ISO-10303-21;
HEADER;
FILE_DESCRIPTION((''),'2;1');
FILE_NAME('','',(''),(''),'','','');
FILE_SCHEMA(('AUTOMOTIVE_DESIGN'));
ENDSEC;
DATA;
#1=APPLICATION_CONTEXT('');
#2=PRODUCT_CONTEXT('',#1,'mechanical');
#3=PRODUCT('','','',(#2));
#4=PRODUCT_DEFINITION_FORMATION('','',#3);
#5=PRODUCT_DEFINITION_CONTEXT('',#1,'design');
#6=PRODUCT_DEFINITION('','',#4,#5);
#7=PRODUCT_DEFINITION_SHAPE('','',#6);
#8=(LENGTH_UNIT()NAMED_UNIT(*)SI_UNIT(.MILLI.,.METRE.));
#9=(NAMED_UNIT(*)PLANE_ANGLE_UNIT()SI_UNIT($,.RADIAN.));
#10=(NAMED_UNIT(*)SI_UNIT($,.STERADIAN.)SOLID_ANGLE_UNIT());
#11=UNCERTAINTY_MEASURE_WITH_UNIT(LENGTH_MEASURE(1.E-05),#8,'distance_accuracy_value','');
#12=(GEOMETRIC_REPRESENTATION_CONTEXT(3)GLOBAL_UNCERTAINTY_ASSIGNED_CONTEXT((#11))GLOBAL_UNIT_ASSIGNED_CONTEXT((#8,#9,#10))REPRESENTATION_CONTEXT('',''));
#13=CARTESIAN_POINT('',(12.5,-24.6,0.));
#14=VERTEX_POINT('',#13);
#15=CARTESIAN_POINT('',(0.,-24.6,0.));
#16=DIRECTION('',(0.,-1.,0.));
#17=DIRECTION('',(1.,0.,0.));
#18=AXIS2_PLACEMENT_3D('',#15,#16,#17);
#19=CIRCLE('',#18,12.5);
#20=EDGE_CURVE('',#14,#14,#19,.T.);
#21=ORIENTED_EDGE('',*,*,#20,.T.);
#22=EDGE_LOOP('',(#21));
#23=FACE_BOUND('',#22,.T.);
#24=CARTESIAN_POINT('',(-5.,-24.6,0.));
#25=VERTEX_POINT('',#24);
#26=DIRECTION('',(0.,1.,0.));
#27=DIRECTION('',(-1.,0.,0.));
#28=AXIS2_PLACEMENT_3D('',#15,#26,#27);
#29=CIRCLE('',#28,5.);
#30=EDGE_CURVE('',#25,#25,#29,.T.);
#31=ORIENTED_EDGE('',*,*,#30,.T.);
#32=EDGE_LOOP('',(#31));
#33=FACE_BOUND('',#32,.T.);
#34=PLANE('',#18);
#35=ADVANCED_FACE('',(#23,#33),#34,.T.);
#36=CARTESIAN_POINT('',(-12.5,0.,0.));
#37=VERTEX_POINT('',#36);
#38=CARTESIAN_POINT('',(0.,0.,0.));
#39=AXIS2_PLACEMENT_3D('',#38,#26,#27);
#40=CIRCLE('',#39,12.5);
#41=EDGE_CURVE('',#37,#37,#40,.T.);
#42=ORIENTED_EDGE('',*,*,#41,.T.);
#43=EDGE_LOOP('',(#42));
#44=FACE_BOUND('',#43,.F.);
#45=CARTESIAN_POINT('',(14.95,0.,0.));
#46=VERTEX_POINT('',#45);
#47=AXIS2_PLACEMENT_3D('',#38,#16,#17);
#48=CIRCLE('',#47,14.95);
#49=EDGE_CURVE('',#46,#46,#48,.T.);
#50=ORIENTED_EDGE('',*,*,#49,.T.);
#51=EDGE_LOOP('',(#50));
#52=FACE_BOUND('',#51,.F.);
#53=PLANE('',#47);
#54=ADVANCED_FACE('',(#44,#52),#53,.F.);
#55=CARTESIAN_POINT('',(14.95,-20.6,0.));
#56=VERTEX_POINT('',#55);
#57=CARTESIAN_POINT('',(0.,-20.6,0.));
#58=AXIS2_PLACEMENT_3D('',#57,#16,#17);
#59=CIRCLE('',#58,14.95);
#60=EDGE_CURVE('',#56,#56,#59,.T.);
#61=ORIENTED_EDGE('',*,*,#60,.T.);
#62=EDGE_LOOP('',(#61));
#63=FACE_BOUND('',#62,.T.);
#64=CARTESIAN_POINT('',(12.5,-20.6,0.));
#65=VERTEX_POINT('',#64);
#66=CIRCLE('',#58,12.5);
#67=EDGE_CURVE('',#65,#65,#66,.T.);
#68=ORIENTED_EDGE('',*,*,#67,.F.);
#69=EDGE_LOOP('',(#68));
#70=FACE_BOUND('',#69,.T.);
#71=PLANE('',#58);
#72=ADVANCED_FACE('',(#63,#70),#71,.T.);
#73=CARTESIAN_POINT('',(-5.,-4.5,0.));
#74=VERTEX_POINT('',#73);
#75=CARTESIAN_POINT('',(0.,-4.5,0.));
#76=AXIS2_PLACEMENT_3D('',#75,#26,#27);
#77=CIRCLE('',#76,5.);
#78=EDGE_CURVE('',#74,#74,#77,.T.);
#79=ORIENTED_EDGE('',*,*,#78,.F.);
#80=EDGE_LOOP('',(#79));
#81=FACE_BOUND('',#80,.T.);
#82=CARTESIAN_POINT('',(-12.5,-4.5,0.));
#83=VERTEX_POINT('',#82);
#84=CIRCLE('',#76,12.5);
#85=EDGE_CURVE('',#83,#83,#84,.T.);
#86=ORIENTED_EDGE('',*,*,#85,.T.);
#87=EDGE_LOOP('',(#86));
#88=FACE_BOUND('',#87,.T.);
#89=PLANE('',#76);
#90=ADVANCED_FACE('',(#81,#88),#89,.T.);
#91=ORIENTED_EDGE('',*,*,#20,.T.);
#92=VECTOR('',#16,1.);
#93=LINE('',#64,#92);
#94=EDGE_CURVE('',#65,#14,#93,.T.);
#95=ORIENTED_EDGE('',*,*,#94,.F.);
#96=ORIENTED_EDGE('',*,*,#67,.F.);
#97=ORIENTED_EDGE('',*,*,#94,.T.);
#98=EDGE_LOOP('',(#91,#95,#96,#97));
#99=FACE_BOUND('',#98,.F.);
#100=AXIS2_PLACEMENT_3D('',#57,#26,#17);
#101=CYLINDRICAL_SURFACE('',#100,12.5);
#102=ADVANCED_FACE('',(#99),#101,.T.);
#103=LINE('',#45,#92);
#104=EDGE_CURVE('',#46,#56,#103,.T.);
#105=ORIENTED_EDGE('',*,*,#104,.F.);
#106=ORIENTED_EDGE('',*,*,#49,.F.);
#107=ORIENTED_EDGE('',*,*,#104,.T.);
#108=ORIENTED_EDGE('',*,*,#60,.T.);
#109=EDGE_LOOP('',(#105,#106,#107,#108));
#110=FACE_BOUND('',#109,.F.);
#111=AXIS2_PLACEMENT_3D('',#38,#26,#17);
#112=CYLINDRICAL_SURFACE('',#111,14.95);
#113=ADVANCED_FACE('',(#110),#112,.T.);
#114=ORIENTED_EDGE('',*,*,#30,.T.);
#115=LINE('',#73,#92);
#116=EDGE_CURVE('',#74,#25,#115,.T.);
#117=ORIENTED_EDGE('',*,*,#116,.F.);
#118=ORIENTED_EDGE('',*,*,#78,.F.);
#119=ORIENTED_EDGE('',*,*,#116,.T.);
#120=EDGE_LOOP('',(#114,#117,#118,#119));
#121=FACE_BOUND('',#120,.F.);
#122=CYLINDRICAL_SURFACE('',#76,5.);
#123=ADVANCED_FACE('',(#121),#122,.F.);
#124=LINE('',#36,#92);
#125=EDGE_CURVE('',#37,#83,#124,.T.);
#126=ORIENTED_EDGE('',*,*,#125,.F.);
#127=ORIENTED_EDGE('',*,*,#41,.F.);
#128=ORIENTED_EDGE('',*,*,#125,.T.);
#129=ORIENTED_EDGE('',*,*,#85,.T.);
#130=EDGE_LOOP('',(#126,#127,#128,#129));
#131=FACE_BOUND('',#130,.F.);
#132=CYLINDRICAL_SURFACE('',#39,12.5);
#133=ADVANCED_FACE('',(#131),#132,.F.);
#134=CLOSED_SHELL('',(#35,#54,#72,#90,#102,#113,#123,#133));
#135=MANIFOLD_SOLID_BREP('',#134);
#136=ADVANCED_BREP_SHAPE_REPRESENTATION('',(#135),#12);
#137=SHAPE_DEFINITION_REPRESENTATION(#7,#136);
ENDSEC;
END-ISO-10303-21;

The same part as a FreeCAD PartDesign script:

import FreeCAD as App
import Part
import Sketcher

doc = App.newDocument("Part")
params = doc.addObject("Spreadsheet::Sheet", "Params")
for row, (alias, value) in enumerate([
    ("sketch1_diameter", "29.9 mm"),
    ("pad1_length", "20.6 mm"),
    ("sketch2_diameter", "25 mm"),
    ("pad2_length", "4 mm"),
    ("sketch3_diameter", "25 mm"),
    ("pocket1_length", "4.5 mm"),
    ("sketch4_diameter", "10 mm"),
    ("pocket2_length", "25 mm"),
], start=1):
    params.set(f"A{row}", alias)
    params.set(f"B{row}", "=" + value)
    params.setAlias(f"B{row}", alias)

body = doc.addObject("PartDesign::Body", "Body")

# Sketch on XZ plane
sketch1 = body.newObject("Sketcher::SketchObject", "Sketch")
sketch1.AttachmentSupport = (doc.getObject("XZ_Plane"), [""])
sketch1.MapMode = "FlatFace"
sketch1.addGeometry(Part.Circle(App.Vector(0, 0, 0), App.Vector(0, 0, 1), 15), False)
sketch1.addConstraint([
    Sketcher.Constraint("Coincident", 0, 3, -1, 1),
    Sketcher.Constraint("Diameter", 0, 29.9),
])
sketch1.setExpression("Constraints[1]", "Params.sketch1_diameter")
pad1 = body.newObject("PartDesign::Pad", "Pad")
pad1.Profile = sketch1
pad1.setExpression("Length", "Params.pad1_length")

# Sketch on XZ plane
sketch2 = body.newObject("Sketcher::SketchObject", "Sketch001")
sketch2.AttachmentSupport = (doc.getObject("XZ_Plane"), [""])
sketch2.MapMode = "FlatFace"
sketch2.AttachmentOffset = App.Placement(App.Vector(0, 0, 20.6), App.Rotation())
sketch2.addGeometry(Part.Circle(App.Vector(0, 0, 0), App.Vector(0, 0, 1), 12), False)
sketch2.addConstraint([
    Sketcher.Constraint("Coincident", 0, 3, -1, 1),
    Sketcher.Constraint("Diameter", 0, 25.0),
])
sketch2.setExpression("Constraints[1]", "Params.sketch2_diameter")
pad2 = body.newObject("PartDesign::Pad", "Pad001")
pad2.Profile = sketch2
pad2.setExpression("Length", "Params.pad2_length")

# Sketch on XZ plane
sketch3 = body.newObject("Sketcher::SketchObject", "Sketch002")
sketch3.AttachmentSupport = (doc.getObject("XZ_Plane"), [""])
sketch3.MapMode = "FlatFace"
sketch3.addGeometry(Part.Circle(App.Vector(0, 0, 0), App.Vector(0, 0, 1), 12), False)
sketch3.addConstraint([
    Sketcher.Constraint("Coincident", 0, 3, -1, 1),
    Sketcher.Constraint("Diameter", 0, 25.0),
])
sketch3.setExpression("Constraints[1]", "Params.sketch3_diameter")
pocket1 = body.newObject("PartDesign::Pocket", "Pocket")
pocket1.Profile = sketch3
pocket1.setExpression("Length", "Params.pocket1_length")
pocket1.Reversed = True

# Sketch on XZ plane
sketch4 = body.newObject("Sketcher::SketchObject", "Sketch003")
sketch4.AttachmentSupport = (doc.getObject("XZ_Plane"), [""])
sketch4.MapMode = "FlatFace"
sketch4.AttachmentOffset = App.Placement(App.Vector(0, 0, 4.5), App.Rotation())
sketch4.addGeometry(Part.Circle(App.Vector(0, 0, 0), App.Vector(0, 0, 1), 5), False)
sketch4.addConstraint([
    Sketcher.Constraint("Coincident", 0, 3, -1, 1),
    Sketcher.Constraint("Diameter", 0, 10.0),
])
sketch4.setExpression("Constraints[1]", "Params.sketch4_diameter")
pocket2 = body.newObject("PartDesign::Pocket", "Pocket001")
pocket2.Profile = sketch4
pocket2.setExpression("Length", "Params.pocket2_length")
pocket2.Reversed = True

doc.recompute()
